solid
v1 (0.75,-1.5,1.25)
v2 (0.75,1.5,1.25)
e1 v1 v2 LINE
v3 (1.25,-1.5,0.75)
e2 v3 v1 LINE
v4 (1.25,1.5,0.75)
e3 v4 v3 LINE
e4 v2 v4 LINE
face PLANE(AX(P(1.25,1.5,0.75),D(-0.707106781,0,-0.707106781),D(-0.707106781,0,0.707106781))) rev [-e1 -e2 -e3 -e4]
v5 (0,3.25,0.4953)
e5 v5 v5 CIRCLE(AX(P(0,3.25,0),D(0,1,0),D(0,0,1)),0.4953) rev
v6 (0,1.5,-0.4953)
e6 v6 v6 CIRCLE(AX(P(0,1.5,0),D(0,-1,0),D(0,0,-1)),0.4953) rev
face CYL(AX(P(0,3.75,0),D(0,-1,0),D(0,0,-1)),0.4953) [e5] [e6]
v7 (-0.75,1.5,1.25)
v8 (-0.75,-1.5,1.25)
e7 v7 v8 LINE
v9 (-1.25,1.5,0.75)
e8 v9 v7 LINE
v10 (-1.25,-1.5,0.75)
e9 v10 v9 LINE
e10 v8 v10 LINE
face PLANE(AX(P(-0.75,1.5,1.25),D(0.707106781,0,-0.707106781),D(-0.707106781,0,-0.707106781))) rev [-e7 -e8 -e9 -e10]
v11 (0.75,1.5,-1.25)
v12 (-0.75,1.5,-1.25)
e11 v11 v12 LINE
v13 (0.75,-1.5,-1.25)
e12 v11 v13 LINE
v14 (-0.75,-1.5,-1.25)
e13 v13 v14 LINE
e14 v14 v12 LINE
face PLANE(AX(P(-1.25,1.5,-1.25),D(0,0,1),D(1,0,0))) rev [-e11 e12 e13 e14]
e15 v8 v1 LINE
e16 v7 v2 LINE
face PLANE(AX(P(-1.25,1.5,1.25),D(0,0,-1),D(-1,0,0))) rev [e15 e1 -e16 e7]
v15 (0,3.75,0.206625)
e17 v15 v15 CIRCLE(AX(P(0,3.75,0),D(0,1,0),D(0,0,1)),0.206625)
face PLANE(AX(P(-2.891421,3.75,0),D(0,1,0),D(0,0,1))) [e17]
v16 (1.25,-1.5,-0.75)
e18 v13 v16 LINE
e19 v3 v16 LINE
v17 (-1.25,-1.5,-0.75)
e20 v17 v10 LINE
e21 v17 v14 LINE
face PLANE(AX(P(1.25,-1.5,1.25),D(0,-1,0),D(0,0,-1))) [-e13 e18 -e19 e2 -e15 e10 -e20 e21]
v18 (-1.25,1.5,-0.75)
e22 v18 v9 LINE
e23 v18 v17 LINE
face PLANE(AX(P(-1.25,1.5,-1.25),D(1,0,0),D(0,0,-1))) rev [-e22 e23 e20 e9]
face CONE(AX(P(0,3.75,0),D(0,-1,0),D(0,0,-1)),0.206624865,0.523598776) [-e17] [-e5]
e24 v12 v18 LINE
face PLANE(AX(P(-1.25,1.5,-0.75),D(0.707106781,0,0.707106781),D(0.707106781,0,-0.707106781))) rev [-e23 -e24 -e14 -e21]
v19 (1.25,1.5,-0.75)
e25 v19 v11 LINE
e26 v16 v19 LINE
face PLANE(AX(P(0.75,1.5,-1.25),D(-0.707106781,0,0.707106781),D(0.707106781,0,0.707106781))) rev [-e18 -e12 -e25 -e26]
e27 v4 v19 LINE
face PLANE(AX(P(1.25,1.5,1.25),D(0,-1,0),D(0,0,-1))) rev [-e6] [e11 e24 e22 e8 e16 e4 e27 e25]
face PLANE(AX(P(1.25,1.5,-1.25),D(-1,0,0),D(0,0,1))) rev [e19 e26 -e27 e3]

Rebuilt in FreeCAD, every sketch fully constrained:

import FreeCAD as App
import Part
import Sketcher
from FreeCAD import Vector


def edges_at(feature, points):
    """Names of the edges that pass closest to the given points."""
    edges = feature.Shape.Edges
    near = lambda p: min(range(len(edges)), key=lambda i: edges[i].distToShape(Part.Vertex(*p))[0])
    return sorted({f"Edge{near(p) + 1}" for p in points})


def add_polygon(sketch, points):
    """Adds a closed chain of lines whose ends are joined by coincident constraints."""
    first, n = sketch.GeometryCount, len(points)
    for a, b in zip(points, points[1:] + points[:1]):
        sketch.addGeometry(Part.LineSegment(App.Vector(*a, 0), App.Vector(*b, 0)), False)
    for i in range(n):
        sketch.addConstraint(Sketcher.Constraint("Coincident", first + i, 2, first + (i + 1) % n, 1))

doc = App.newDocument("Part")
params = doc.addObject("Spreadsheet::Sheet", "Params")
for row, (alias, value) in enumerate([
    ("sketch1_width", "2.5 mm"),
    ("pad1_length", "3 mm"),
    ("pad2_length", "2.25 mm"),
    ("chamfer_size", "0.5 mm"),
    ("chamfer_size2", "0.288675 mm"),
    ("chamfer2_size", "0.5 mm"),
], start=1):
    params.set(f"A{row}", alias)
    params.set(f"B{row}", "=" + value)
    params.setAlias(f"B{row}", alias)

body = doc.addObject("PartDesign::Body", "Body")

sketch1 = body.newObject("Sketcher::SketchObject", "Sketch")
sketch1.AttachmentSupport = (doc.getObject("XZ_Plane"), [""])
sketch1.MapMode = "FlatFace"
add_polygon(sketch1, [(-1.2, -1.2), (-1.2, 1.2), (1.2, 1.2), (1.2, -1.2)])
sketch1.addConstraint([
    Sketcher.Constraint("Vertical", 0),
    Sketcher.Constraint("Horizontal", 1),
    Sketcher.Constraint("Vertical", 2),
    Sketcher.Constraint("Horizontal", 3),
    Sketcher.Constraint("Symmetric", 0, 2, 2, 2, -1, 1),
    Sketcher.Constraint("Equal", 3, 0),
    Sketcher.Constraint("DistanceX", 1, 1, 1, 2, 2.5),
])
sketch1.setExpression("Constraints[10]", "Params.sketch1_width")
pad1 = body.newObject("PartDesign::Pad", "Pad")
pad1.Profile = sketch1
pad1.setExpression("Length", "Params.pad1_length")
pad1.Midplane = True

sketch2 = body.newObject("Sketcher::SketchObject", "Sketch001")
sketch2.AttachmentSupport = (doc.getObject("XZ_Plane"), [""])
sketch2.MapMode = "FlatFace"
sketch2.AttachmentOffset = App.Placement(Vector(0, 0, -1.5), App.Rotation())
sketch2.addGeometry(Part.Circle(Vector(0, 0, 0), Vector(0, 0, 1), 0.5), False)
sketch2.addConstraint([
    Sketcher.Constraint("Coincident", 0, 3, -1, 1),
    Sketcher.Constraint("Diameter", 0, 0.9906),
])
pad2 = body.newObject("PartDesign::Pad", "Pad001")
pad2.Profile = sketch2
pad2.setExpression("Length", "Params.pad2_length")
pad2.Reversed = True
doc.recompute()

chamfer = body.newObject("PartDesign::Chamfer", "Chamfer")
chamfer.Base = (pad2, edges_at(pad2, [(-0.495, 3.75, 0)]))
chamfer.ChamferType = "Two distances"
chamfer.setExpression("Size", "Params.chamfer_size")
chamfer.setExpression("Size2", "Params.chamfer_size2")
doc.recompute()

chamfer2 = body.newObject("PartDesign::Chamfer", "Chamfer001")
chamfer2.Base = (chamfer, edges_at(chamfer, [
    (-1.25, 0, 1.25),
    (-1.25, 0, -1.25),
    (1.25, 0, -1.25),
    (1.25, 0, 1.25),
]))
chamfer2.setExpression("Size", "Params.chamfer2_size")

doc.recompute()
